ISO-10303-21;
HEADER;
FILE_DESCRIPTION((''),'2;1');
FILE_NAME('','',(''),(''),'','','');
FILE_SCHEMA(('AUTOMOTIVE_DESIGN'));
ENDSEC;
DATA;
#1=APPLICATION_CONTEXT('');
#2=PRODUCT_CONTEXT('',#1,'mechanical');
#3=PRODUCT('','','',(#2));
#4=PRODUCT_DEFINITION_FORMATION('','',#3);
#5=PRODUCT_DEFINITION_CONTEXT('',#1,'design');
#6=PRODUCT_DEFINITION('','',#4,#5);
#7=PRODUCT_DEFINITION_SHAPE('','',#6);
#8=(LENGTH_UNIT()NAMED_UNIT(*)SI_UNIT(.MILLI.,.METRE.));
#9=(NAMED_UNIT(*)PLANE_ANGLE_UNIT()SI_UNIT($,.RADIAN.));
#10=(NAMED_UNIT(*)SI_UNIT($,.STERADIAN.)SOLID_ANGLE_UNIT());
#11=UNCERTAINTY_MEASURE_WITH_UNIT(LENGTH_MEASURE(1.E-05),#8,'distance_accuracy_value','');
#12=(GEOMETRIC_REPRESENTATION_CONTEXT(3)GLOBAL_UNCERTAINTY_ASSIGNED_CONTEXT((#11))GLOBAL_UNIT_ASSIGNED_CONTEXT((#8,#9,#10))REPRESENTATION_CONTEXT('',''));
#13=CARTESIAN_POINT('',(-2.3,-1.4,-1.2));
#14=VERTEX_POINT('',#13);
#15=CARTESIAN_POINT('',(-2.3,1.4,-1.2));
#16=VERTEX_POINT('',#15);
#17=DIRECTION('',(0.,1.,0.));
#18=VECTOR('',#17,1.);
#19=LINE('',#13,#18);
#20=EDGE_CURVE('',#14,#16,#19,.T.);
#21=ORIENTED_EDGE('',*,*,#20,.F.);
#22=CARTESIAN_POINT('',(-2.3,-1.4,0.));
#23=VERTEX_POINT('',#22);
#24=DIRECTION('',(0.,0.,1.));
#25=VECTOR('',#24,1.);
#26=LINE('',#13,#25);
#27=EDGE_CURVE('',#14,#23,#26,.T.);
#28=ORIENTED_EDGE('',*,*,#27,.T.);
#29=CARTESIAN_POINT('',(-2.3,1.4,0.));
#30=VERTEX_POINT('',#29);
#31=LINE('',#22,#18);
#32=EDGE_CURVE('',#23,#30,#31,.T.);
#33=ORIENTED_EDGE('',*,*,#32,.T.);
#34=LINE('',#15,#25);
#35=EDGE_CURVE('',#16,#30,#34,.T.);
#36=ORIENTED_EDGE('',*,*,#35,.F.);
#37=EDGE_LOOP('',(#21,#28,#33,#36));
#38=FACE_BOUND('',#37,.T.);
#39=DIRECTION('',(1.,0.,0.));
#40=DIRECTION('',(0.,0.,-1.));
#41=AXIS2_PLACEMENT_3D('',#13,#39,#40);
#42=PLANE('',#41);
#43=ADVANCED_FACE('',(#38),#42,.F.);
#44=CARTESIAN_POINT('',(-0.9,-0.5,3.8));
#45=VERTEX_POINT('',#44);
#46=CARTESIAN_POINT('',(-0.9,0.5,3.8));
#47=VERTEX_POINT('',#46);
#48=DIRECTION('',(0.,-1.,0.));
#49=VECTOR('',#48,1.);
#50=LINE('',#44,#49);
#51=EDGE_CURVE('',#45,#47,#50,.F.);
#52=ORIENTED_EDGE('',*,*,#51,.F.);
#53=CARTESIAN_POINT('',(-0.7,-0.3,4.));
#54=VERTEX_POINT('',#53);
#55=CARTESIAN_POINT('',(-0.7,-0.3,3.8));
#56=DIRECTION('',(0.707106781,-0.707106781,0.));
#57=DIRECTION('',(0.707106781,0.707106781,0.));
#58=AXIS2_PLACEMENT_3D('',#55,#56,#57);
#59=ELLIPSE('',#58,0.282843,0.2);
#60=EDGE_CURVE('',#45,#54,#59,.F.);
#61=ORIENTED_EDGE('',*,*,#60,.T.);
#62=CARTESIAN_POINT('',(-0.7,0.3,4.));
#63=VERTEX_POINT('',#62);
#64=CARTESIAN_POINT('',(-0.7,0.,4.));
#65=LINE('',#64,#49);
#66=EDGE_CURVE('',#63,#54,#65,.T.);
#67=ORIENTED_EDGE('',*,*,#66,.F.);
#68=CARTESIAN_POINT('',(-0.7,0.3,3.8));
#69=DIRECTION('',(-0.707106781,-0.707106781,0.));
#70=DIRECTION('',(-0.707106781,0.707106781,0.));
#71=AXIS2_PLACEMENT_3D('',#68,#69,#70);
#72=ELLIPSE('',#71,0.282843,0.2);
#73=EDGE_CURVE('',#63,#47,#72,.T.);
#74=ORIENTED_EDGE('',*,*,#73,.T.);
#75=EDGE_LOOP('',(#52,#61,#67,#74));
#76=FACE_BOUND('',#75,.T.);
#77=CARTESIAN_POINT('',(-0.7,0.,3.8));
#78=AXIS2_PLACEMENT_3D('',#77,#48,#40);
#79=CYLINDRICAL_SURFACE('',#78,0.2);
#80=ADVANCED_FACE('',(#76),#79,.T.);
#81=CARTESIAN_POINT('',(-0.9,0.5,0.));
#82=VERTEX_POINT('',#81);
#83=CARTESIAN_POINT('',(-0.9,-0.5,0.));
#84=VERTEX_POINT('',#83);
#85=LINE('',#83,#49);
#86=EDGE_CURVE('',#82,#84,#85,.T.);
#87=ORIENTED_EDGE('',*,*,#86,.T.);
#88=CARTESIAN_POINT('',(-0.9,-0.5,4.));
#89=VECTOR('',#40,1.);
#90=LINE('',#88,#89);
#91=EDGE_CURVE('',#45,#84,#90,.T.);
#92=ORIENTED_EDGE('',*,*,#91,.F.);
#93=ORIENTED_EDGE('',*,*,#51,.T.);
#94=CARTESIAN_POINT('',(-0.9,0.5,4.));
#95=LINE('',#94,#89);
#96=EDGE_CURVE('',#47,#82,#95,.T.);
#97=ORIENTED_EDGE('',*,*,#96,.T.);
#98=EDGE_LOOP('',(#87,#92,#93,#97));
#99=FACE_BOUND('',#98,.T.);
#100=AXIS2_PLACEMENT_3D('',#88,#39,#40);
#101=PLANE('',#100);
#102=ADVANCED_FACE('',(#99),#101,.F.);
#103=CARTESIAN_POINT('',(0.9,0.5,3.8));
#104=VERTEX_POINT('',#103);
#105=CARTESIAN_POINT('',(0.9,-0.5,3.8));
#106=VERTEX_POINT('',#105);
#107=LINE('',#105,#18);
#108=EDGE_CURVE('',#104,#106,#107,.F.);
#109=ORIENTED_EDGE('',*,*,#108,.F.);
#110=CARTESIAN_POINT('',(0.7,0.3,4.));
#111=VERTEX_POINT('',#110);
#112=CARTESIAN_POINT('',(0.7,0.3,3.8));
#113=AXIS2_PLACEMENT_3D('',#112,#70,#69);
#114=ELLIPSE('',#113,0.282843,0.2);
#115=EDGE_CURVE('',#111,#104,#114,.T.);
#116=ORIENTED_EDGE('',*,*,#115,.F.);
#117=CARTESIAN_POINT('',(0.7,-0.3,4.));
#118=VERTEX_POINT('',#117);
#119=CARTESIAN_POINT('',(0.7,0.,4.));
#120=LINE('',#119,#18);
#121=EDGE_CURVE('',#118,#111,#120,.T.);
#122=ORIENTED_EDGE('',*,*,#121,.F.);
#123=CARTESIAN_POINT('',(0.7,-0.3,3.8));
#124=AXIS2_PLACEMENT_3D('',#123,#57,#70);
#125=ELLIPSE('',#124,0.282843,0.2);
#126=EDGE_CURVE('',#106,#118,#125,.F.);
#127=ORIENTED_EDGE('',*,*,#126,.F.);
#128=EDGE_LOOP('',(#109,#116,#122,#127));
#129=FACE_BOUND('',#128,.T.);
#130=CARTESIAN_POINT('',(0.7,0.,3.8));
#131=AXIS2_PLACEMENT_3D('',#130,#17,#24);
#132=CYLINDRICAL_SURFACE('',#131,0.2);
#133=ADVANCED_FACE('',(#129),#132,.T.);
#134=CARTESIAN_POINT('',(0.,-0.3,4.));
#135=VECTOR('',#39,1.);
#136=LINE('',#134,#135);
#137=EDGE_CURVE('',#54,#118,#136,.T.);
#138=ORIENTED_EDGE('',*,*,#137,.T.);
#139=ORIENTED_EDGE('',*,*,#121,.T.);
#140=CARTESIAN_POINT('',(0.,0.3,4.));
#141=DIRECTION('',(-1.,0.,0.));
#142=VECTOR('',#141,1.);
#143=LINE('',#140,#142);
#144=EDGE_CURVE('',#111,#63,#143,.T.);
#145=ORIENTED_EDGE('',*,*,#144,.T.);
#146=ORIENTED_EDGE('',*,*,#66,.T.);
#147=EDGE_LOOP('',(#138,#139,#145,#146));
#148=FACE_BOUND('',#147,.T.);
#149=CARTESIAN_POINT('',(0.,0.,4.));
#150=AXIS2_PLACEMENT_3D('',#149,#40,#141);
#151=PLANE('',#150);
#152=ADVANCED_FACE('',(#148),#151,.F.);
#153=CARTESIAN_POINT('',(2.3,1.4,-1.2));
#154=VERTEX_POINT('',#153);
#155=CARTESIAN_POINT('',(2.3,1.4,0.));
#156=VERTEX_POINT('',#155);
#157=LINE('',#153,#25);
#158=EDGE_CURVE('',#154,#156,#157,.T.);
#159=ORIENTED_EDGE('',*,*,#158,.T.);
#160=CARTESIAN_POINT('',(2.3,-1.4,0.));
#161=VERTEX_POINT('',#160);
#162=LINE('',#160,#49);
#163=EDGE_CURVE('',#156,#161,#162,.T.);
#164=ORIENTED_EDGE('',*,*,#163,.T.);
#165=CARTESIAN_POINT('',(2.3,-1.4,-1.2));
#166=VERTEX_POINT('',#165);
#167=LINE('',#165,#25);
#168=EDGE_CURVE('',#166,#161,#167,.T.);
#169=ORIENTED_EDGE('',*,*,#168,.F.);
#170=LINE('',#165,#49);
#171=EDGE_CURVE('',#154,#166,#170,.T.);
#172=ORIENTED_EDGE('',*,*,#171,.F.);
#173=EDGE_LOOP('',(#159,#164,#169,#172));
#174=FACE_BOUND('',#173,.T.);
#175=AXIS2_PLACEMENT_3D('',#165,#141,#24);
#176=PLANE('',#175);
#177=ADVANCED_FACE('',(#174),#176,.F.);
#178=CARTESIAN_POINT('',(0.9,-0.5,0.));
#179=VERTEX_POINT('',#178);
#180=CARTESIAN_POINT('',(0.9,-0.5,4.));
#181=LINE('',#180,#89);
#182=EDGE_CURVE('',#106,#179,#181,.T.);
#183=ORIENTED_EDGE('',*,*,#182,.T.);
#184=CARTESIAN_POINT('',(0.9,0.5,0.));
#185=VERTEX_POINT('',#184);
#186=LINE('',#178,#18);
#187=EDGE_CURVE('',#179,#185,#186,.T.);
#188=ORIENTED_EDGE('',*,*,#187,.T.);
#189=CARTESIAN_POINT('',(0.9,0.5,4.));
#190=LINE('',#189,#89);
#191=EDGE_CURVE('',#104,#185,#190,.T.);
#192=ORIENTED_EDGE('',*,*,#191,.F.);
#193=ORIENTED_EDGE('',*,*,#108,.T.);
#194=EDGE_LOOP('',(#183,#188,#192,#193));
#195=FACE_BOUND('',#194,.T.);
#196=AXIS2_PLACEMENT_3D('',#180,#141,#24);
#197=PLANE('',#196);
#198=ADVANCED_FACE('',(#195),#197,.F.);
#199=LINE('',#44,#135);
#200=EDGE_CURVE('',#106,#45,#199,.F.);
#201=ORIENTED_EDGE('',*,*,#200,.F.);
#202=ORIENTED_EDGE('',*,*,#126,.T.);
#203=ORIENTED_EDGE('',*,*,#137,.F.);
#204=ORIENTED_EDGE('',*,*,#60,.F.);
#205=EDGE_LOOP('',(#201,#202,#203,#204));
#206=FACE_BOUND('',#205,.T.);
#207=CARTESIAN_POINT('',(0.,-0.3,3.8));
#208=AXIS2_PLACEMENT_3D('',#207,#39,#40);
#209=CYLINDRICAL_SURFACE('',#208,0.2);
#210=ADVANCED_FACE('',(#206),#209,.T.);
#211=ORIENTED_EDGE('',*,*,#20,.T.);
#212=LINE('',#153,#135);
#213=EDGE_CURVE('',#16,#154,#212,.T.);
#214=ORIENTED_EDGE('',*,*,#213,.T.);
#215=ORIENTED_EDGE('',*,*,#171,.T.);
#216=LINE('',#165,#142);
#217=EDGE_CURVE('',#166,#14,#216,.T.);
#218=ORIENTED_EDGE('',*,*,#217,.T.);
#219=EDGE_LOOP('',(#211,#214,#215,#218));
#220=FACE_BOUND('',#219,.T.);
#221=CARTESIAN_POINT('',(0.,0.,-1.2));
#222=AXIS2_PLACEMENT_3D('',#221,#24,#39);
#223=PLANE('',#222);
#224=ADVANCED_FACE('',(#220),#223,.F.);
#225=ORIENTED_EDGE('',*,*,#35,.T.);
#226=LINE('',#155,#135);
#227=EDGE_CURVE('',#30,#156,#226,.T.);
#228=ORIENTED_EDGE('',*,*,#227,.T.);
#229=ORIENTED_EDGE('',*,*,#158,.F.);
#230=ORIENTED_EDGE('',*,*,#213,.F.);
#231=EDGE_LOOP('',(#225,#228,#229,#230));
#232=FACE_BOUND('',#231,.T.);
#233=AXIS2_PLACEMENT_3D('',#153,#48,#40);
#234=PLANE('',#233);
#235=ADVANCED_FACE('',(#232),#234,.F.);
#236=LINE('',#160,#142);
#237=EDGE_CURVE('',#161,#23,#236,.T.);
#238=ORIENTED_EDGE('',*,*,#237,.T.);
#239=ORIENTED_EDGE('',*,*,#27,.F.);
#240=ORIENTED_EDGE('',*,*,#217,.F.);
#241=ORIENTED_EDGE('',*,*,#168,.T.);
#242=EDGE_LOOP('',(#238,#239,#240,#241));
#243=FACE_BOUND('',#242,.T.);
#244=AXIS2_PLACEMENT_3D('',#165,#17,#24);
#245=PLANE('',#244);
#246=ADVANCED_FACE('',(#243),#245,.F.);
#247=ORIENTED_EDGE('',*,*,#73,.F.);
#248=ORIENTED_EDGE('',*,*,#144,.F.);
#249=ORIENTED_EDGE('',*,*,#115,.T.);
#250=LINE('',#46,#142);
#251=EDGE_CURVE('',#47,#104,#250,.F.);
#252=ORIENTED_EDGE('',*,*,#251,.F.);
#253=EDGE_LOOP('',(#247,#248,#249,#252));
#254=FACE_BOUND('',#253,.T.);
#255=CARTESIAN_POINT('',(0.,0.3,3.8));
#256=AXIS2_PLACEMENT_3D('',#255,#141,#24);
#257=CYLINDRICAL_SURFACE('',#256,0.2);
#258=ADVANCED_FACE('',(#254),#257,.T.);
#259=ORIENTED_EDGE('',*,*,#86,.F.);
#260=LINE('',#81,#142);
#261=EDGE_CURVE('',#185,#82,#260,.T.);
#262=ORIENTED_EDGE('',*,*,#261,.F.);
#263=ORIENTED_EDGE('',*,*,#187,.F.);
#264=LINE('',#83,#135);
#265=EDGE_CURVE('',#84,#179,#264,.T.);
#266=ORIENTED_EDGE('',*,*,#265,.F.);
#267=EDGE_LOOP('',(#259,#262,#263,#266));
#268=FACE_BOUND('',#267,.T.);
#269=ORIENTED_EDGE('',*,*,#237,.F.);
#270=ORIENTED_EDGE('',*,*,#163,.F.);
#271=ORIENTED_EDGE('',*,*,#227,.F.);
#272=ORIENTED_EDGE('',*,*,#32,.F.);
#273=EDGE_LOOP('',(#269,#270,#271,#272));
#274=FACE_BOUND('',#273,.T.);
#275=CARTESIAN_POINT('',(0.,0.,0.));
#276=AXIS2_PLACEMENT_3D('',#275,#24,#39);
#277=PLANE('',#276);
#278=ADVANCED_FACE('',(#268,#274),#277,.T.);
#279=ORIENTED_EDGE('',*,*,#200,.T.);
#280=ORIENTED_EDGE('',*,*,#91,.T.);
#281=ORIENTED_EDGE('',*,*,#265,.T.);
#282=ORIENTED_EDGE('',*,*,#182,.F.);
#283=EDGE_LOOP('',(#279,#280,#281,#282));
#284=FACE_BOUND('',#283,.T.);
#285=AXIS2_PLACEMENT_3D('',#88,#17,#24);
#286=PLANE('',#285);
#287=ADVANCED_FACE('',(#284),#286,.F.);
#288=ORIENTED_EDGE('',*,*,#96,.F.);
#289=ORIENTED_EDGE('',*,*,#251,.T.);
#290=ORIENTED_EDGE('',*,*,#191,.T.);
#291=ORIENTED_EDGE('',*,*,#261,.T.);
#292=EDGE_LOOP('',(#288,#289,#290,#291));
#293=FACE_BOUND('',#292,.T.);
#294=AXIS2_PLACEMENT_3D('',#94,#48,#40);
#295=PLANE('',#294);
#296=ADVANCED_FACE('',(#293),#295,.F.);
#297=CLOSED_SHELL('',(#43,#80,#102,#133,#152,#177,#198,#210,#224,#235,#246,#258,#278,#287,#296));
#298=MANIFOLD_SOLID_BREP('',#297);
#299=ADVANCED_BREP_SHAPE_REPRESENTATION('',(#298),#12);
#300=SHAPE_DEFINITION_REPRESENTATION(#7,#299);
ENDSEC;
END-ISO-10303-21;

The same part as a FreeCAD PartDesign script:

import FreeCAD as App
import Part
import Sketcher


def edges_at(feature, points):
    """Names of the edges that pass closest to the given points."""
    edges = feature.Shape.Edges
    near = lambda p: min(range(len(edges)), key=lambda i: edges[i].distToShape(Part.Vertex(*p))[0])
    return sorted({f"Edge{near(p) + 1}" for p in points})

doc = App.newDocument("Part")
body = doc.addObject("PartDesign::Body", "Body")

# Sketch on XY plane
sketch1 = body.newObject("Sketcher::SketchObject", "Sketch")
sketch1.AttachmentSupport = (doc.getObject("XY_Plane"), [""])
sketch1.MapMode = "FlatFace"
sketch1.addGeometry([
    Part.LineSegment(App.Vector(-0.9, 0.5, 0), App.Vector(-0.9, -0.5, 0)),
    Part.LineSegment(App.Vector(-0.9, -0.5, 0), App.Vector(0.9, -0.5, 0)),
    Part.LineSegment(App.Vector(0.9, -0.5, 0), App.Vector(0.9, 0.5, 0)),
    Part.LineSegment(App.Vector(0.9, 0.5, 0), App.Vector(-0.9, 0.5, 0)),
], False)
sketch1.addConstraint([
    Sketcher.Constraint("Coincident", 0, 2, 1, 1),
    Sketcher.Constraint("Coincident", 1, 2, 2, 1),
    Sketcher.Constraint("Coincident", 2, 2, 3, 1),
    Sketcher.Constraint("Coincident", 3, 2, 0, 1),
    Sketcher.Constraint("Vertical", 0),
    Sketcher.Constraint("Horizontal", 1),
    Sketcher.Constraint("Vertical", 2),
    Sketcher.Constraint("Horizontal", 3),
    Sketcher.Constraint("Symmetric", 0, 2, 2, 2, -1, 1),
    Sketcher.Constraint("DistanceY", 0, 2, 0, 1, 1.0),
    Sketcher.Constraint("DistanceX", 1, 1, 1, 2, 1.8),
])
pad1 = body.newObject("PartDesign::Pad", "Pad")
pad1.Profile = sketch1
pad1.Length = 4

# Sketch on XY plane
sketch2 = body.newObject("Sketcher::SketchObject", "Sketch001")
sketch2.AttachmentSupport = (doc.getObject("XY_Plane"), [""])
sketch2.MapMode = "FlatFace"
sketch2.addGeometry([
    Part.LineSegment(App.Vector(2.3, 1.4, 0), App.Vector(2.3, -1.4, 0)),
    Part.LineSegment(App.Vector(2.3, -1.4, 0), App.Vector(-2.3, -1.4, 0)),
    Part.LineSegment(App.Vector(-2.3, -1.4, 0), App.Vector(-2.3, 1.4, 0)),
    Part.LineSegment(App.Vector(-2.3, 1.4, 0), App.Vector(2.3, 1.4, 0)),
], False)
sketch2.addConstraint([
    Sketcher.Constraint("Coincident", 0, 2, 1, 1),
    Sketcher.Constraint("Coincident", 1, 2, 2, 1),
    Sketcher.Constraint("Coincident", 2, 2, 3, 1),
    Sketcher.Constraint("Coincident", 3, 2, 0, 1),
    Sketcher.Constraint("Vertical", 0),
    Sketcher.Constraint("Horizontal", 1),
    Sketcher.Constraint("Vertical", 2),
    Sketcher.Constraint("Horizontal", 3),
    Sketcher.Constraint("Symmetric", 0, 2, 2, 2, -1, 1),
    Sketcher.Constraint("DistanceX", 1, 2, 1, 1, 4.6),
    Sketcher.Constraint("DistanceY", 0, 2, 0, 1, 2.8),
])
pad2 = body.newObject("PartDesign::Pad", "Pad001")
pad2.Profile = sketch2
pad2.Length = 1.2
pad2.Reversed = True
doc.recompute()

fillet = body.newObject("PartDesign::Fillet", "Fillet")
fillet.Base = (pad2, edges_at(pad2, [
    (-0.9, 0, 4),
    (0, -0.5, 4),
    (0.9, 0, 4),
    (0, 0.5, 4),
]))
fillet.Radius = 0.2

doc.recompute()
